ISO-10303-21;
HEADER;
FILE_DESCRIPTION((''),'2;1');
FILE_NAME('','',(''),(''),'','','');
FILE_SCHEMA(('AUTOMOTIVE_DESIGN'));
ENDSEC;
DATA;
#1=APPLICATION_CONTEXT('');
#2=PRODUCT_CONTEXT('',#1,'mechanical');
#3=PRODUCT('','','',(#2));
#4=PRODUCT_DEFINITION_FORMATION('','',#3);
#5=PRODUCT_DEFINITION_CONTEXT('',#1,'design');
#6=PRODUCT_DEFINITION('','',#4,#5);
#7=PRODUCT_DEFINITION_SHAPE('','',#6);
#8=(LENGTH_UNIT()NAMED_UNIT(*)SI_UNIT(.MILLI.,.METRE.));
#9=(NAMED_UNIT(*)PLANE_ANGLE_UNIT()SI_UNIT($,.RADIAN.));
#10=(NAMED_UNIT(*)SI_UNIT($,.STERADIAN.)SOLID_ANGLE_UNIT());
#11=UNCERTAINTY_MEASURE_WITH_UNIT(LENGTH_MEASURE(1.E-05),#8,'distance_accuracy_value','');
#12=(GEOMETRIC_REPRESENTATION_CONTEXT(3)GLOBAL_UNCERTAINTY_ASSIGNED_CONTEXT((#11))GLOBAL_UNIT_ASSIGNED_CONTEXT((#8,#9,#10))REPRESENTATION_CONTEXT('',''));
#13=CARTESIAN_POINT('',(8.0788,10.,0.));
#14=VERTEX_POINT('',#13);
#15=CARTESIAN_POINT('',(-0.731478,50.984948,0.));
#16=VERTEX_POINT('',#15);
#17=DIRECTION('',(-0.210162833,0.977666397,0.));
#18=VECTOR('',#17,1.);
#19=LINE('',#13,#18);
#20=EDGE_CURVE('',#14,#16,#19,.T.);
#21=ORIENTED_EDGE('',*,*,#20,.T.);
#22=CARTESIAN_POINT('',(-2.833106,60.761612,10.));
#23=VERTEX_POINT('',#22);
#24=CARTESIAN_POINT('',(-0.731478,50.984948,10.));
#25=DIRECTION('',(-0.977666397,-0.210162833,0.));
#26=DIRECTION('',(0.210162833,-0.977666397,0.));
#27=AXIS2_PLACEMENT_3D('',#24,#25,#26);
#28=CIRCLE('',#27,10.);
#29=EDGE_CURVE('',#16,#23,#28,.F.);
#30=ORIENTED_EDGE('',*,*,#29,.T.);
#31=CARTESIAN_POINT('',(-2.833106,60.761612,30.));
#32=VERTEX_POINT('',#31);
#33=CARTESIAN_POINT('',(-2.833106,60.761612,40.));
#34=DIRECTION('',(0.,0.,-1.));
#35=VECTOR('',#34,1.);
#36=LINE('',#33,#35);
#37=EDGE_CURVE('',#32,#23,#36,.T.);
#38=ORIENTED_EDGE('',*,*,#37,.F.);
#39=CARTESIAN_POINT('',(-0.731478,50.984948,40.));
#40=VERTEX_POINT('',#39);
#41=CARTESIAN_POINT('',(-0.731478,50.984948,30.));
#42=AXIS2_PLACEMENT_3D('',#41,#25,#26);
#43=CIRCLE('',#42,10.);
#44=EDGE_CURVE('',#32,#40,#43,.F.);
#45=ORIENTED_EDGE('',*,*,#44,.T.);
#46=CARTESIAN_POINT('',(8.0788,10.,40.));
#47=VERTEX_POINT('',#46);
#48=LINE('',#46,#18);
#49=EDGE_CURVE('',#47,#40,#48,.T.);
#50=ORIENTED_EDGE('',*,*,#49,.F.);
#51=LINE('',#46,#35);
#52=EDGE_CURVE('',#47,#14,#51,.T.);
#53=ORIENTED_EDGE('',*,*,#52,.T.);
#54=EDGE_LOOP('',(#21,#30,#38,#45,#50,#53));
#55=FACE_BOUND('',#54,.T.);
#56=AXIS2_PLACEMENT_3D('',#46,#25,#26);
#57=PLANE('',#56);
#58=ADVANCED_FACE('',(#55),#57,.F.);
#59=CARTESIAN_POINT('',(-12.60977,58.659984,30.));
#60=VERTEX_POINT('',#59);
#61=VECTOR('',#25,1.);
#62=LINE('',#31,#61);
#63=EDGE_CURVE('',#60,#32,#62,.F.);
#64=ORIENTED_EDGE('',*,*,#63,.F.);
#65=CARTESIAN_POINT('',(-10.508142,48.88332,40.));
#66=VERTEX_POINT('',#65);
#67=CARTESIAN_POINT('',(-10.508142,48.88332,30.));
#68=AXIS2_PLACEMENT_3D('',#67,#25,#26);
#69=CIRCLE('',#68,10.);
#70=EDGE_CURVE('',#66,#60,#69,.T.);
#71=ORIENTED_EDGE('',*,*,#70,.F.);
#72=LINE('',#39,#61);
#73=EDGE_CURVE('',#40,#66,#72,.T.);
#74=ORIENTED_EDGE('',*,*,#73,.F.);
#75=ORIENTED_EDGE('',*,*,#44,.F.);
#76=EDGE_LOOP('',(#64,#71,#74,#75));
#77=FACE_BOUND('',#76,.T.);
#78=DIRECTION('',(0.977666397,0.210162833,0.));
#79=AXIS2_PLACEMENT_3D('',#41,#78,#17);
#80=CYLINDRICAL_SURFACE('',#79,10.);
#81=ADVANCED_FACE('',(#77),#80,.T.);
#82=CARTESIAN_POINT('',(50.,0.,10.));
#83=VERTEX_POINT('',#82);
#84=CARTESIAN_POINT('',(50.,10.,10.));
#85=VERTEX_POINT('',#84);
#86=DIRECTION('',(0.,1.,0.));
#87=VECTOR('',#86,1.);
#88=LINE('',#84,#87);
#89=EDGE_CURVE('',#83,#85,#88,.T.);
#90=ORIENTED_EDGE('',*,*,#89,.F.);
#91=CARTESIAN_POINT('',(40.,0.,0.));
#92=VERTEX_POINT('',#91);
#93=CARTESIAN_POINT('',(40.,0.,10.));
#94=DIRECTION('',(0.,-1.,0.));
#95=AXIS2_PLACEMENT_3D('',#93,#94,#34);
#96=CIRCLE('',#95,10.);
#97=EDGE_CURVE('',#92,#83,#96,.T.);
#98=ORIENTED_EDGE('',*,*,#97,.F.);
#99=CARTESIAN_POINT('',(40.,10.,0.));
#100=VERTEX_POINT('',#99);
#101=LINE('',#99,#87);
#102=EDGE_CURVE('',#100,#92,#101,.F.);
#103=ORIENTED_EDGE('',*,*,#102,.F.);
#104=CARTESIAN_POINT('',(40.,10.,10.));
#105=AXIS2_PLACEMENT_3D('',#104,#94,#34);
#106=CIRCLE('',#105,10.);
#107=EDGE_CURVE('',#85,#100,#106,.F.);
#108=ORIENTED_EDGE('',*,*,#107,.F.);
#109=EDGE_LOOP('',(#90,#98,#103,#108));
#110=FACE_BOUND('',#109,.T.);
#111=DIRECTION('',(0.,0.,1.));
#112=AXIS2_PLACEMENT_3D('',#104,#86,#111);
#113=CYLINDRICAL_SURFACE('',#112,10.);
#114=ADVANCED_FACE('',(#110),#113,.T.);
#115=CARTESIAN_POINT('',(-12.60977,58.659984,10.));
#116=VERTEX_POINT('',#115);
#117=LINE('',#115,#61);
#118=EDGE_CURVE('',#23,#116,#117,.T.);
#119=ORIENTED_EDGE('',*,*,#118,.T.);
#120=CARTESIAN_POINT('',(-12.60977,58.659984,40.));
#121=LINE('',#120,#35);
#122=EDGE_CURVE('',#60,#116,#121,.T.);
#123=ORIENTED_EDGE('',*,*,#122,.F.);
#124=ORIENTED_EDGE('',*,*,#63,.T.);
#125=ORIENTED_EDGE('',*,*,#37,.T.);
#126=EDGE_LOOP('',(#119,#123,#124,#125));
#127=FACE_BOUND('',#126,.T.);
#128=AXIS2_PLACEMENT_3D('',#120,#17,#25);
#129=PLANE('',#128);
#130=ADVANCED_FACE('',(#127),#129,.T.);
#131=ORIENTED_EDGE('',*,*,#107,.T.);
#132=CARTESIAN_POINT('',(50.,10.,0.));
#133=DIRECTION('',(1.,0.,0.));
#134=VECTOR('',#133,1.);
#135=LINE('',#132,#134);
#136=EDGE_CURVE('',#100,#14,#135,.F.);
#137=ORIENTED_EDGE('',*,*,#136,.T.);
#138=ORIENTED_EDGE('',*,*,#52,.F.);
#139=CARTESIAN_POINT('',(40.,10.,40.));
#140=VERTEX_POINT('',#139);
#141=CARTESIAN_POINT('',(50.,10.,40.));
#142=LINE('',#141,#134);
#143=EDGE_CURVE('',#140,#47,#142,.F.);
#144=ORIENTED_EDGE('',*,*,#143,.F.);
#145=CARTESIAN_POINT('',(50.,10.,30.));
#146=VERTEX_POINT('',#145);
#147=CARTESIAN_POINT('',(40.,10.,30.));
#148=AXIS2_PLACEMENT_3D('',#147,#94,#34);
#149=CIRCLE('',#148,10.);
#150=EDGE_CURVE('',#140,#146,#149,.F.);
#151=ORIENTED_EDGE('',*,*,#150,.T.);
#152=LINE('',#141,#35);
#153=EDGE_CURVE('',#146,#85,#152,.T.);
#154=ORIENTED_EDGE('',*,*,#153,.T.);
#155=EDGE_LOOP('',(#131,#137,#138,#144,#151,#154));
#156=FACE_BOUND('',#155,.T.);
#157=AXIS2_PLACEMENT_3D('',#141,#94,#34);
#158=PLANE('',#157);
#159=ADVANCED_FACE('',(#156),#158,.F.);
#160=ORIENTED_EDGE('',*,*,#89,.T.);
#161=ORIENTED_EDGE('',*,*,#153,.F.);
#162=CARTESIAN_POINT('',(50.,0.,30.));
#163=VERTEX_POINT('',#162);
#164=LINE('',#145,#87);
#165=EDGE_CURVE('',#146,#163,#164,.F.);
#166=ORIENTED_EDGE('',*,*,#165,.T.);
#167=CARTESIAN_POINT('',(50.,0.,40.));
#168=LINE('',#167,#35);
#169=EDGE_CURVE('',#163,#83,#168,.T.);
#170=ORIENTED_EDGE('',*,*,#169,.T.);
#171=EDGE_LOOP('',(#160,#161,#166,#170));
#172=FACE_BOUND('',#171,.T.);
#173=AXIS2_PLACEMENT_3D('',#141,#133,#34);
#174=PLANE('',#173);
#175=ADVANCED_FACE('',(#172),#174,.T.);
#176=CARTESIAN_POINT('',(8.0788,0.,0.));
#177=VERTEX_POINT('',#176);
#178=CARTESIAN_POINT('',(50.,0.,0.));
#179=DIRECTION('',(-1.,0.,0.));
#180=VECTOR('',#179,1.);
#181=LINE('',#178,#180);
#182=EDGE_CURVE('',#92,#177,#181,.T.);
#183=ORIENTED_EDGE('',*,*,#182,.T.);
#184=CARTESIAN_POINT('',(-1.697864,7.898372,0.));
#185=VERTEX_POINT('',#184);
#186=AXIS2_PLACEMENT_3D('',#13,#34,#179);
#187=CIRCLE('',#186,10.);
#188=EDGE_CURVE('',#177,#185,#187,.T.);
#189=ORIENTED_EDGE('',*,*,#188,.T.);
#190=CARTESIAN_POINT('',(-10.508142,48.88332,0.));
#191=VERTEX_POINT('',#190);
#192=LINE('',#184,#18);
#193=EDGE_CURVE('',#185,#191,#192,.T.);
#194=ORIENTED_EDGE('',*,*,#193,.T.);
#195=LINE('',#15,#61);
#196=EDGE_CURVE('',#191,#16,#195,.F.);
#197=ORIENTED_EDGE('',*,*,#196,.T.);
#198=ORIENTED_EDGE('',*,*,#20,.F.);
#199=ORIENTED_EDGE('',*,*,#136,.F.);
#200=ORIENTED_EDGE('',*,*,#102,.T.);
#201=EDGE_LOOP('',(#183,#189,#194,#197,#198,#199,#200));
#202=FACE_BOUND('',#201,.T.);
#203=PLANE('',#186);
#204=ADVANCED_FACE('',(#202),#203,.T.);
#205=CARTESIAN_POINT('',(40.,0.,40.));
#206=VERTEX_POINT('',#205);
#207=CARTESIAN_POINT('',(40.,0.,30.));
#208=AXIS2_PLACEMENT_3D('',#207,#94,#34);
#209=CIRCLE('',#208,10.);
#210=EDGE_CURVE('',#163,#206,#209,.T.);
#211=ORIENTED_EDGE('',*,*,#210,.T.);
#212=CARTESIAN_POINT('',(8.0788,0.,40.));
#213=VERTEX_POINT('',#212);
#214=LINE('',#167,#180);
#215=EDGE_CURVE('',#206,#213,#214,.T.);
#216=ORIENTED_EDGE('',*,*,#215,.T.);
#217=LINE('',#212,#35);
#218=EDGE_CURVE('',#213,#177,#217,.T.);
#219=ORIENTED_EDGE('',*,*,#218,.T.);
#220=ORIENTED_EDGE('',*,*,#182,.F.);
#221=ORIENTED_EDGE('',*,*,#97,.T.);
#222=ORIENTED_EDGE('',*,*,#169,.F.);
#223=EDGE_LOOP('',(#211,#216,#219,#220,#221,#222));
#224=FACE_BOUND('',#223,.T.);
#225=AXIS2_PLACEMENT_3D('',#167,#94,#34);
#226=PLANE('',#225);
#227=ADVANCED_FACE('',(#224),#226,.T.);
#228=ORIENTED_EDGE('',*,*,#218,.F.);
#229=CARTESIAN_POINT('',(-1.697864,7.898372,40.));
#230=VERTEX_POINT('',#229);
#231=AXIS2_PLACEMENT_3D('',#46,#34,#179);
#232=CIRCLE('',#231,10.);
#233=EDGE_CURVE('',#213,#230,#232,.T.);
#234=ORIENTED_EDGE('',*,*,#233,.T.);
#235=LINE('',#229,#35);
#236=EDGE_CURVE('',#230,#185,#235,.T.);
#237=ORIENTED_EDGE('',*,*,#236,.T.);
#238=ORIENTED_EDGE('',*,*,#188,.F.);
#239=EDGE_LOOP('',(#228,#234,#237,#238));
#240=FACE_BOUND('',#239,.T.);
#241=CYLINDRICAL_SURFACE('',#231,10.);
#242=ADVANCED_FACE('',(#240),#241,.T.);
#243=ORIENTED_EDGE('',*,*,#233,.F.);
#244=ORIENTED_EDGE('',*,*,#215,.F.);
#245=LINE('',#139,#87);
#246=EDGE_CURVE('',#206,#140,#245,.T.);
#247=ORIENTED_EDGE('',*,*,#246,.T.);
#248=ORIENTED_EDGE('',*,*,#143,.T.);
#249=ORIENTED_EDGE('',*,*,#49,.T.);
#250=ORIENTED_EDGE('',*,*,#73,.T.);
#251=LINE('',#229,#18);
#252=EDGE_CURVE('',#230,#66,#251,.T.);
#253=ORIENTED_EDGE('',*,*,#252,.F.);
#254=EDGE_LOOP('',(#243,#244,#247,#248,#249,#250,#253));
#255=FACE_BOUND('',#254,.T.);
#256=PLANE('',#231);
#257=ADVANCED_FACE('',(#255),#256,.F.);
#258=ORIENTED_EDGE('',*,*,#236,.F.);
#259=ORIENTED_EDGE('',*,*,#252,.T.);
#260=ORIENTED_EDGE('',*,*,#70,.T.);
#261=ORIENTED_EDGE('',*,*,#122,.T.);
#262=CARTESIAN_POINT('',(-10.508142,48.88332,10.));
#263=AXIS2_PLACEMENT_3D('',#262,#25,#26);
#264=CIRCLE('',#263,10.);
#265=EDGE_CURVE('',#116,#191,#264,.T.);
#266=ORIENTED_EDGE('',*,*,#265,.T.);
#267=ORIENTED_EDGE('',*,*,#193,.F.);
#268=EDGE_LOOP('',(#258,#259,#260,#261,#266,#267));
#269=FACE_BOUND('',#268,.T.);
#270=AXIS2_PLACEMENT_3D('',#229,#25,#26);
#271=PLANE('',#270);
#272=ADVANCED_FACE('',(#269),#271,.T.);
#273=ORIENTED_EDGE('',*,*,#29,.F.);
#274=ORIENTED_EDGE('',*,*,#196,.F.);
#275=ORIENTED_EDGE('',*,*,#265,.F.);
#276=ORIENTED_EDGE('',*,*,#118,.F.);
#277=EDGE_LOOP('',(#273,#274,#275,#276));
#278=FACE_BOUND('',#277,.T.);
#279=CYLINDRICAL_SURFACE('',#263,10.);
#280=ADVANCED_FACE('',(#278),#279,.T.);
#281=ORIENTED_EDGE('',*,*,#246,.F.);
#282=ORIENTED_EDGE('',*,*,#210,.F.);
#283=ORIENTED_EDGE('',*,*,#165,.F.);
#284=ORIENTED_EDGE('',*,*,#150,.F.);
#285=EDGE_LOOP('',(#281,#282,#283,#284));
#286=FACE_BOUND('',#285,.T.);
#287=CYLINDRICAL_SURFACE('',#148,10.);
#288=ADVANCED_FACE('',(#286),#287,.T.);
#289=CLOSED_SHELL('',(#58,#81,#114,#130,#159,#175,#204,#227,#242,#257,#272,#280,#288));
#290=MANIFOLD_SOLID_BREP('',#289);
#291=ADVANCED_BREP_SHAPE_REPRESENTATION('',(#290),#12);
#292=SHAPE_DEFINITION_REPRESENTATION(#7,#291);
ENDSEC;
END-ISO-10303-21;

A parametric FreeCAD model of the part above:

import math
import FreeCAD as App
import Part
import Sketcher


def edges_at(feature, points):
    """Names of the edges that pass closest to the given points."""
    edges = feature.Shape.Edges
    near = lambda p: min(range(len(edges)), key=lambda i: edges[i].distToShape(Part.Vertex(*p))[0])
    return sorted({f"Edge{near(p) + 1}" for p in points})

doc = App.newDocument("Part")
body = doc.addObject("PartDesign::Body", "Body")

# Sketch on XY plane
sketch1 = body.newObject("Sketcher::SketchObject", "Sketch")
sketch1.AttachmentSupport = (doc.getObject("XY_Plane"), [""])
sketch1.MapMode = "FlatFace"
sketch1.addGeometry([
    Part.LineSegment(App.Vector(8.0788, 0, 0), App.Vector(50, 0, 0)),  # 0
    Part.LineSegment(App.Vector(50, 0, 0), App.Vector(50, 10, 0)),  # 1
    Part.LineSegment(App.Vector(50, 10, 0), App.Vector(8.0788, 10, 0)),  # 2
    Part.LineSegment(App.Vector(8.0788, 10, 0), App.Vector(-2.833106, 60.761612, 0)),  # 3
    Part.LineSegment(App.Vector(-2.833106, 60.761612, 0), App.Vector(-12.60977, 58.659984, 0)),  # 4
    Part.LineSegment(App.Vector(-12.60977, 58.659984, 0), App.Vector(-1.697864, 7.898372, 0)),  # 5
    Part.ArcOfCircle(Part.Circle(App.Vector(8.0788, 10, 0), App.Vector(0, 0, 1), 10), math.radians(-167.868105), math.radians(-90)),  # 6
], False)
sketch1.addConstraint([
    Sketcher.Constraint("Coincident", 0, 2, 1, 1),
    Sketcher.Constraint("Coincident", 1, 2, 2, 1),
    Sketcher.Constraint("Coincident", 2, 2, 3, 1),
    Sketcher.Constraint("Coincident", 3, 2, 4, 1),
    Sketcher.Constraint("Coincident", 4, 2, 5, 1),
    Sketcher.Constraint("Tangent", 5, 2, 6, 1),
    Sketcher.Constraint("Tangent", 6, 2, 0, 1),
    Sketcher.Constraint("Horizontal", 0),
    Sketcher.Constraint("Vertical", 1),
    Sketcher.Constraint("Horizontal", 2),
    Sketcher.Constraint("Coincident", 2, 2, 6, 3),
    Sketcher.Constraint("PointOnObject", 0, 2, -1),
    Sketcher.Constraint("Perpendicular", 3, 4),
    Sketcher.Constraint("Perpendicular", 4, 5),
    Sketcher.Constraint("Radius", 6, 10.0),
    Sketcher.Constraint("DistanceX", -1, 1, 0, 2, 50.0),
    Sketcher.Constraint("DistanceX", 0, 1, 0, 2, 41.9212),
    Sketcher.Constraint("Distance", 3, 51.9212),
    Sketcher.Constraint("DistanceX", 4, 2, -1, 1, 12.60977),
])
pad1 = body.newObject("PartDesign::Pad", "Pad")
pad1.Profile = sketch1
pad1.Length = 40
doc.recompute()

fillet = body.newObject("PartDesign::Fillet", "Fillet")
fillet.Base = (pad1, edges_at(pad1, [(-7.721, 59.711, 40)]))
fillet.Radius = 10
doc.recompute()

fillet2 = body.newObject("PartDesign::Fillet", "Fillet001")
fillet2.Base = (fillet, edges_at(fillet, [(50, 5, 40)]))
fillet2.Radius = 10
doc.recompute()

fillet3 = body.newObject("PartDesign::Fillet", "Fillet002")
fillet3.Base = (fillet2, edges_at(fillet2, [(50, 5, 0)]))
fillet3.Radius = 10
doc.recompute()

fillet4 = body.newObject("PartDesign::Fillet", "Fillet003")
fillet4.Base = (fillet3, edges_at(fillet3, [(-7.721, 59.711, 0)]))
fillet4.Radius = 10

doc.recompute()
